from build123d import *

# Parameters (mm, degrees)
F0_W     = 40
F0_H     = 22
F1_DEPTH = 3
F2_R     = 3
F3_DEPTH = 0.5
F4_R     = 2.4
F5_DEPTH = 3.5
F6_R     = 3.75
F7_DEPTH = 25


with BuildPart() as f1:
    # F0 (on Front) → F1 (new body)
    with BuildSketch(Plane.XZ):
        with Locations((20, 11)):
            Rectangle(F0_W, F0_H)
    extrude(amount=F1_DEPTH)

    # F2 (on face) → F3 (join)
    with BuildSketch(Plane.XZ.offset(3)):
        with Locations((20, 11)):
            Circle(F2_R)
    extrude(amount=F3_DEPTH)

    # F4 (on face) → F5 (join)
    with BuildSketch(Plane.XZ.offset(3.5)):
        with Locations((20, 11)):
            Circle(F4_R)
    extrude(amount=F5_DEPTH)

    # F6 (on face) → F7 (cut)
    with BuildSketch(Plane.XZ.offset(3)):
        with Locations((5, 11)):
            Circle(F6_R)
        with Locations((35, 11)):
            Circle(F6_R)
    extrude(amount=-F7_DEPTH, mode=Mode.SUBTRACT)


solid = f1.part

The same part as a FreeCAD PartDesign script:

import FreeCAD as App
import Part
import Sketcher
from FreeCAD import Vector
Q = App.Units.Quantity

doc = App.newDocument("Part")
body = doc.addObject("PartDesign::Body", "Body")

sketch1 = body.newObject("Sketcher::SketchObject", "Sketch")
sketch1.AttachmentSupport = (doc.getObject("XZ_Plane"), [""])
sketch1.MapMode = "FlatFace"
sketch1.addGeometry(Part.LineSegment(Vector(0, 22, 0), Vector(0, 0, 0)), False)
sketch1.addGeometry(Part.LineSegment(Vector(0, 0, 0), Vector(40, 0, 0)), False)
sketch1.addGeometry(Part.LineSegment(Vector(40, 0, 0), Vector(40, 22, 0)), False)
sketch1.addGeometry(Part.LineSegment(Vector(40, 22, 0), Vector(0, 22, 0)), False)
sketch1.addConstraint(Sketcher.Constraint("Coincident", 0, 2, 1, 1))
sketch1.addConstraint(Sketcher.Constraint("Coincident", 1, 2, 2, 1))
sketch1.addConstraint(Sketcher.Constraint("Coincident", 2, 2, 3, 1))
sketch1.addConstraint(Sketcher.Constraint("Coincident", 3, 2, 0, 1))
sketch1.addConstraint(Sketcher.Constraint("Vertical", 0))
sketch1.addConstraint(Sketcher.Constraint("Horizontal", 1))
sketch1.addConstraint(Sketcher.Constraint("Vertical", 2))
sketch1.addConstraint(Sketcher.Constraint("Horizontal", 3))
sketch1.addConstraint(Sketcher.Constraint("Coincident", 0, 2, -1, 1))
sketch1.addConstraint(Sketcher.Constraint("DistanceX", 1, 1, 1, 2, Q("40 mm")))
sketch1.addConstraint(Sketcher.Constraint("DistanceY", 0, 2, 0, 1, Q("22 mm")))
pad1 = body.newObject("PartDesign::Pad", "Pad")
pad1.Profile = sketch1
pad1.Length = 3

sketch2 = body.newObject("Sketcher::SketchObject", "Sketch001")
sketch2.AttachmentSupport = (doc.getObject("XZ_Plane"), [""])
sketch2.MapMode = "FlatFace"
sketch2.AttachmentOffset = App.Placement(Vector(0, 0, 3), App.Rotation())
sketch2.addGeometry(Part.Circle(Vector(20, 11, 0), Vector(0, 0, 1), 3), False)
sketch2.addConstraint(Sketcher.Constraint("Diameter", 0, Q("6 mm")))
sketch2.addConstraint(Sketcher.Constraint("DistanceX", -1, 1, 0, 3, Q("20 mm")))
sketch2.addConstraint(Sketcher.Constraint("DistanceY", -1, 1, 0, 3, Q("11 mm")))
pad2 = body.newObject("PartDesign::Pad", "Pad001")
pad2.Profile = sketch2
pad2.Length = 0.5

sketch3 = body.newObject("Sketcher::SketchObject", "Sketch002")
sketch3.AttachmentSupport = (doc.getObject("XZ_Plane"), [""])
sketch3.MapMode = "FlatFace"
sketch3.AttachmentOffset = App.Placement(Vector(0, 0, 3.5), App.Rotation())
sketch3.addGeometry(Part.Circle(Vector(20, 11, 0), Vector(0, 0, 1), 2.4), False)
sketch3.addConstraint(Sketcher.Constraint("Diameter", 0, Q("4.8 mm")))
sketch3.addConstraint(Sketcher.Constraint("DistanceX", -1, 1, 0, 3, Q("20 mm")))
sketch3.addConstraint(Sketcher.Constraint("DistanceY", -1, 1, 0, 3, Q("11 mm")))
pad3 = body.newObject("PartDesign::Pad", "Pad002")
pad3.Profile = sketch3
pad3.Length = 3.5

sketch4 = body.newObject("Sketcher::SketchObject", "Sketch003")
sketch4.AttachmentSupport = (doc.getObject("XZ_Plane"), [""])
sketch4.MapMode = "FlatFace"
sketch4.AttachmentOffset = App.Placement(Vector(0, 0, 3), App.Rotation())
sketch4.addGeometry(Part.Circle(Vector(5, 11, 0), Vector(0, 0, 1), 3.8), False)
sketch4.addGeometry(Part.Circle(Vector(35, 11, 0), Vector(0, 0, 1), 3.8), False)
sketch4.addConstraint(Sketcher.Constraint("Equal", 0, 1))
sketch4.addConstraint(Sketcher.Constraint("Horizontal", 0, 3, 1, 3))
sketch4.addConstraint(Sketcher.Constraint("Diameter", 0, Q("7.5 mm")))
sketch4.addConstraint(Sketcher.Constraint("DistanceX", -1, 1, 0, 3, Q("5 mm")))
sketch4.addConstraint(Sketcher.Constraint("DistanceY", -1, 1, 0, 3, Q("11 mm")))
sketch4.addConstraint(Sketcher.Constraint("DistanceX", -1, 1, 1, 3, Q("35 mm")))
pocket1 = body.newObject("PartDesign::Pocket", "Pocket")
pocket1.Profile = sketch4
pocket1.Length = 25

doc.recompute()
